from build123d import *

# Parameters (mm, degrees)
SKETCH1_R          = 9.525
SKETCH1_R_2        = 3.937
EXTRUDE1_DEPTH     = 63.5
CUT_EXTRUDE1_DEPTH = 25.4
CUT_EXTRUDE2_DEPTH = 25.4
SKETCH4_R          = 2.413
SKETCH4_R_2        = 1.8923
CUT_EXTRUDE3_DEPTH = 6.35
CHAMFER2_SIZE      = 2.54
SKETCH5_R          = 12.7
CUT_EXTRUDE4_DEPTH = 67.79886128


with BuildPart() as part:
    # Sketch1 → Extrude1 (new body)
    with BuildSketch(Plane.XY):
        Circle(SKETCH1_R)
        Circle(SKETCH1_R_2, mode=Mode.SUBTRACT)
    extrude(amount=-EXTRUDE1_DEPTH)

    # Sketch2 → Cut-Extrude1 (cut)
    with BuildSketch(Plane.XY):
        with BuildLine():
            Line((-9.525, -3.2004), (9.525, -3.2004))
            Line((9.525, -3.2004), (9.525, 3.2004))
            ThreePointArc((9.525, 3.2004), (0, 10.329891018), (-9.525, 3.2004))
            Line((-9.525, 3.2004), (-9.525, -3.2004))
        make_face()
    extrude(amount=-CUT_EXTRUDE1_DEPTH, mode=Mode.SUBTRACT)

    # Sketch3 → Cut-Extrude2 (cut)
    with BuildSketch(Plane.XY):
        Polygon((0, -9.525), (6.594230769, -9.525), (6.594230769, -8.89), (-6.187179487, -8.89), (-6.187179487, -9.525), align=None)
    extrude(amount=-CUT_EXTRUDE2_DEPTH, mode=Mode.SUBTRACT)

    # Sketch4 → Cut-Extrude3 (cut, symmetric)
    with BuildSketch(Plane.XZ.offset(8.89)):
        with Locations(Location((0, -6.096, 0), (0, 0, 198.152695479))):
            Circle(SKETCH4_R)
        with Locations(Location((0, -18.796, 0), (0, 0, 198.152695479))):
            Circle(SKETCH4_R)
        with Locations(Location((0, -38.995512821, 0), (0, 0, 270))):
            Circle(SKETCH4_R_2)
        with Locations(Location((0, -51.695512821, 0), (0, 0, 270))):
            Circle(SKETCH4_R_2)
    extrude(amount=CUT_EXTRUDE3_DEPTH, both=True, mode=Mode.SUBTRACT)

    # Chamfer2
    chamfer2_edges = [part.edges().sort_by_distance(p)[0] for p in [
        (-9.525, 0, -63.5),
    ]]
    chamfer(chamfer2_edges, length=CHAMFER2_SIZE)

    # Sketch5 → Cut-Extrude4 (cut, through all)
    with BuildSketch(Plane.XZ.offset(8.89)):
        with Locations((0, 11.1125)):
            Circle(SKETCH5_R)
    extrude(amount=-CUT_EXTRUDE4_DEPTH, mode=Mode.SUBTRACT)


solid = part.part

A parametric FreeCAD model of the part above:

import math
import FreeCAD as App
import Part
import Sketcher

V = App.Vector
Q = App.Units.Quantity


def edges_at(feature, points):
    """Names of the edges that pass closest to the given points."""
    edges = feature.Shape.Edges
    near = lambda p: min(range(len(edges)), key=lambda i: edges[i].distToShape(Part.Vertex(*p))[0])
    return sorted({f"Edge{near(p) + 1}" for p in points})


def add_polygon(sketch, points):
    """Adds a closed chain of lines whose ends are joined by coincident constraints."""
    first, n = sketch.GeometryCount, len(points)
    for a, b in zip(points, points[1:] + points[:1]):
        sketch.addGeometry(Part.LineSegment(App.Vector(*a, 0), App.Vector(*b, 0)), False)
    for i in range(n):
        sketch.addConstraint(Sketcher.Constraint("Coincident", first + i, 2, first + (i + 1) % n, 1))

doc = App.newDocument("Part")
body = doc.addObject("PartDesign::Body", "Body")

# Sketch on XY plane
sketch1 = body.newObject("Sketcher::SketchObject", "Sketch")
sketch1.AttachmentSupport = (doc.getObject("XY_Plane"), [""])
sketch1.MapMode = "FlatFace"
sketch1.addGeometry([
    Part.Circle(V(0, 0, 0), V(0, 0, 1), 9.525),
    Part.Circle(V(0, 0, 0), V(0, 0, 1), 3.937),
], False)
sketch1.addConstraint([
    Sketcher.Constraint("Coincident", 0, 3, -1, 1),
    Sketcher.Constraint("Coincident", 1, 3, -1, 1),
    Sketcher.Constraint("Diameter", 0, Q("0.75 in")),
    Sketcher.Constraint("Diameter", 1, Q("0.31 in")),
])
pad1 = body.newObject("PartDesign::Pad", "Pad")
pad1.Profile = sketch1
pad1.Length = Q("2.5 in")
pad1.Reversed = True

# Sketch on XY plane
sketch2 = body.newObject("Sketcher::SketchObject", "Sketch001")
sketch2.AttachmentSupport = (doc.getObject("XY_Plane"), [""])
sketch2.MapMode = "FlatFace"
sketch2.addGeometry([
    Part.LineSegment(V(-9.525, -3.2004, 0), V(9.525, -3.2004, 0)),
    Part.LineSegment(V(9.525, -3.2004, 0), V(9.525, 3.2004, 0)),
    Part.ArcOfCircle(Part.Circle(V(0, 0.402446, 0), V(0, 0, 1), 9.927446), math.radians(16.370072), math.radians(163.629928)),
    Part.LineSegment(V(-9.525, 3.2004, 0), V(-9.525, -3.2004, 0)),
], False)
sketch2.addConstraint([
    Sketcher.Constraint("Coincident", 0, 2, 1, 1),
    Sketcher.Constraint("Coincident", 1, 2, 2, 1),
    Sketcher.Constraint("Coincident", 2, 2, 3, 1),
    Sketcher.Constraint("Coincident", 3, 2, 0, 1),
    Sketcher.Constraint("Horizontal", 0),
    Sketcher.Constraint("Vertical", 1),
    Sketcher.Constraint("Vertical", 3),
    Sketcher.Constraint("Symmetric", 0, 2, 2, 2, -1, 1),
    Sketcher.Constraint("PointOnObject", 2, 3, -2),
    Sketcher.Constraint("DistanceX", 0, 1, 0, 2, Q("0.75 in")),
    Sketcher.Constraint("DistanceY", 1, 1, 1, 2, Q("0.252 in")),
    Sketcher.Constraint("Radius", 2, Q("9.927446 mm")),
])
pocket1 = body.newObject("PartDesign::Pocket", "Pocket")
pocket1.Profile = sketch2
pocket1.Length = Q("1 in")

# Sketch on XY plane
sketch3 = body.newObject("Sketcher::SketchObject", "Sketch002")
sketch3.AttachmentSupport = (doc.getObject("XY_Plane"), [""])
sketch3.MapMode = "FlatFace"
add_polygon(sketch3, [(6.594231, -9.525), (6.594231, -8.89), (-6.187179, -8.89), (-6.187179, -9.525)])  # lines 0-3
sketch3.addConstraint([
    Sketcher.Constraint("Vertical", 0),
    Sketcher.Constraint("Horizontal", 1),
    Sketcher.Constraint("Vertical", 2),
    Sketcher.Constraint("Horizontal", 3),
    Sketcher.Constraint("DistanceY", 0, 1, 0, 2, Q("0.025 in")),
    Sketcher.Constraint("DistanceY", 0, 2, -1, 1, Q("0.35 in")),
    Sketcher.Constraint("DistanceX", 1, 2, 1, 1, Q("12.78141 mm")),
    Sketcher.Constraint("DistanceX", -1, 1, 0, 2, Q("6.594231 mm")),
])
pocket2 = body.newObject("PartDesign::Pocket", "Pocket001")
pocket2.Profile = sketch3
pocket2.Length = Q("1 in")

# Sketch on XZ plane
sketch4 = body.newObject("Sketcher::SketchObject", "Sketch003")
sketch4.AttachmentSupport = (doc.getObject("XZ_Plane"), [""])
sketch4.MapMode = "FlatFace"
sketch4.AttachmentOffset = App.Placement(V(0, 0, 0.35 * 25.4), App.Rotation())
sketch4.addGeometry([
    Part.Circle(V(0, -6.096, 0), V(0, 0, 1), 2.413),
    Part.Circle(V(0, -18.796, 0), V(0, 0, 1), 2.413),
    Part.Circle(V(0, -38.995513, 0), V(0, 0, 1), 1.8923),
    Part.Circle(V(0, -51.695513, 0), V(0, 0, 1), 1.8923),
], False)
sketch4.addConstraint([
    Sketcher.Constraint("Equal", 0, 1),
    Sketcher.Constraint("Equal", 2, 3),
    Sketcher.Constraint("PointOnObject", 0, 3, -2),
    Sketcher.Constraint("PointOnObject", 1, 3, -2),
    Sketcher.Constraint("PointOnObject", 2, 3, -2),
    Sketcher.Constraint("PointOnObject", 3, 3, -2),
    Sketcher.Constraint("Diameter", 0, Q("0.19 in")),
    Sketcher.Constraint("Diameter", 2, Q("0.149 in")),
    Sketcher.Constraint("DistanceY", 1, 3, 0, 3, Q("0.5 in")),
    Sketcher.Constraint("DistanceY", 3, 3, 2, 3, Q("0.5 in")),
    Sketcher.Constraint("DistanceY", 0, 3, -1, 1, Q("0.24 in")),
    Sketcher.Constraint("DistanceY", 2, 3, -1, 1, Q("38.995513 mm")),
])
pocket3 = body.newObject("PartDesign::Pocket", "Pocket002")
pocket3.Profile = sketch4
pocket3.Length = Q("0.5 in")
pocket3.Midplane = True
doc.recompute()

chamfer = body.newObject("PartDesign::Chamfer", "Chamfer")
chamfer.Base = (pocket3, edges_at(pocket3, [(-9.525, 0, -63.5)]))
chamfer.Size = Q("0.1 in")

# Sketch on XZ plane
sketch5 = body.newObject("Sketcher::SketchObject", "Sketch004")
sketch5.AttachmentSupport = (doc.getObject("XZ_Plane"), [""])
sketch5.MapMode = "FlatFace"
sketch5.AttachmentOffset = App.Placement(V(0, 0, 0.35 * 25.4), App.Rotation())
sketch5.addGeometry(Part.Circle(V(0, 11.1125, 0), V(0, 0, 1), 12.7), False)
sketch5.addConstraint([
    Sketcher.Constraint("PointOnObject", 0, 3, -2),
    Sketcher.Constraint("Diameter", 0, Q("1 in")),
    Sketcher.Constraint("DistanceY", -1, 1, 0, 3, Q("0.4375 in")),
])
pocket4 = body.newObject("PartDesign::Pocket", "Pocket003")
pocket4.Profile = sketch5
pocket4.Type = "ThroughAll"

doc.recompute()
